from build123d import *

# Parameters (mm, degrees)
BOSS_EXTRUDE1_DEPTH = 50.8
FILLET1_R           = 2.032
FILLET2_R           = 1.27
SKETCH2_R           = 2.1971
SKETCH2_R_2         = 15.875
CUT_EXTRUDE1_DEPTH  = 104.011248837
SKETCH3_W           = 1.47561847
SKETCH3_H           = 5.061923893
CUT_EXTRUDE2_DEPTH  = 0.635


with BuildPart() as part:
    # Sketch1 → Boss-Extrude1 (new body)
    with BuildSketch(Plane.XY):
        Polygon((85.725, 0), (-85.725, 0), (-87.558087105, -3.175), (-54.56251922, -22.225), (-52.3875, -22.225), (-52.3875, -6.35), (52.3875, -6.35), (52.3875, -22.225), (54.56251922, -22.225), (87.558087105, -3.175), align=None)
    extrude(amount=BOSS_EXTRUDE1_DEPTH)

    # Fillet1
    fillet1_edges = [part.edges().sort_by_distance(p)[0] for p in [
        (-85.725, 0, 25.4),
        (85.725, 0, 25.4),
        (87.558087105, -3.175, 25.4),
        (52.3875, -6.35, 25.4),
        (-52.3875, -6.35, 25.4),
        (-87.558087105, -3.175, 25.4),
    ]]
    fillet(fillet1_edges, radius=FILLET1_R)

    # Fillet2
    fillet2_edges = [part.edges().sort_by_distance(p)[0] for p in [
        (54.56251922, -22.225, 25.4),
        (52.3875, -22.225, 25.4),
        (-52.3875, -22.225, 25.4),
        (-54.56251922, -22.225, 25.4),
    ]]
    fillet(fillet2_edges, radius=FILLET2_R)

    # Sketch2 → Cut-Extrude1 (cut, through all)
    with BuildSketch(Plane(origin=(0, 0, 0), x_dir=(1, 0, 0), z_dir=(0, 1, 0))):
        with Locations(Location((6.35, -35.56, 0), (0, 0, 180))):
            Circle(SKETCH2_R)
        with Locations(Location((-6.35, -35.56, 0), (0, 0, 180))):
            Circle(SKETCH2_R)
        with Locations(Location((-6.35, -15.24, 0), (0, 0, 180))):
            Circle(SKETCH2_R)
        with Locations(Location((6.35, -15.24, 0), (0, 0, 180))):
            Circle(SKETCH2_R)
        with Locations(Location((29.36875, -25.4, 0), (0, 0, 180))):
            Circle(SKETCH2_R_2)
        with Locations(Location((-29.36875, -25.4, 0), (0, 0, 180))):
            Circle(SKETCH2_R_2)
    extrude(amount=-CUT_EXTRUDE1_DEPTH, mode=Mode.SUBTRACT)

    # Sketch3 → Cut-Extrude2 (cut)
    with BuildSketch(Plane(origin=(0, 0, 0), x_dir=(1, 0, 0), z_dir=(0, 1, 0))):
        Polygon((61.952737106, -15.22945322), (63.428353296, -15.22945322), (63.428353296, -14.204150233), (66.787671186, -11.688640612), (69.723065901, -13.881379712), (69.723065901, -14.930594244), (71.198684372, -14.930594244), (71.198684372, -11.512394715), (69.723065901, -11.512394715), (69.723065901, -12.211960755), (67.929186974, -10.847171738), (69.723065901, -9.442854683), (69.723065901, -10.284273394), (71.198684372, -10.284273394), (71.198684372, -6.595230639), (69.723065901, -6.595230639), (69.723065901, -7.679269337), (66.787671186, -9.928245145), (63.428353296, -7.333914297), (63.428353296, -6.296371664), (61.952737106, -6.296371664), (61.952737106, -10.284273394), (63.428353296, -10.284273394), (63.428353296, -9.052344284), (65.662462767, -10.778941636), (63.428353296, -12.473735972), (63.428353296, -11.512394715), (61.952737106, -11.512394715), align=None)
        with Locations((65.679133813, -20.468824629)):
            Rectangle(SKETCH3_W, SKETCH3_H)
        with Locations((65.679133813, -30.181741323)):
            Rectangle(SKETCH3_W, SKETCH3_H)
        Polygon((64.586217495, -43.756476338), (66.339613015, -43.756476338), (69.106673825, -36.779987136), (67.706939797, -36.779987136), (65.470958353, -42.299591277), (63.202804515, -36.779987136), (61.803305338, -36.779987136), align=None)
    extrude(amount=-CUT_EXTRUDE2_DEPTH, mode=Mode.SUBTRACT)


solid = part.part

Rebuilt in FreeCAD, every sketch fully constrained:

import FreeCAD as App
import Part
import Sketcher
Q = App.Units.Quantity


def edges_at(feature, points):
    """Names of the edges that pass closest to the given points."""
    edges = feature.Shape.Edges
    near = lambda p: min(range(len(edges)), key=lambda i: edges[i].distToShape(Part.Vertex(*p))[0])
    return sorted({f"Edge{near(p) + 1}" for p in points})

doc = App.newDocument("Part")
body = doc.addObject("PartDesign::Body", "Body")

sketch1 = doc.addObject("Sketcher::SketchObject", "Sketch")
body.addObject(sketch1)
sketch1.AttachmentSupport = (doc.XY_Plane, [""])
sketch1.MapMode = "FlatFace"
sketch1.addGeometry([
    Part.LineSegment(App.Vector(85.725, 0, 0), App.Vector(-85.725, 0, 0)),
    Part.LineSegment(App.Vector(-85.725, 0, 0), App.Vector(-87.558087, -3.175, 0)),
    Part.LineSegment(App.Vector(-87.558087, -3.175, 0), App.Vector(-54.562519, -22.225, 0)),
    Part.LineSegment(App.Vector(-54.562519, -22.225, 0), App.Vector(-52.3875, -22.225, 0)),
    Part.LineSegment(App.Vector(-52.3875, -22.225, 0), App.Vector(-52.3875, -6.35, 0)),
    Part.LineSegment(App.Vector(-52.3875, -6.35, 0), App.Vector(52.3875, -6.35, 0)),
    Part.LineSegment(App.Vector(52.3875, -6.35, 0), App.Vector(52.3875, -22.225, 0)),
    Part.LineSegment(App.Vector(52.3875, -22.225, 0), App.Vector(54.562519, -22.225, 0)),
    Part.LineSegment(App.Vector(54.562519, -22.225, 0), App.Vector(87.558087, -3.175, 0)),
    Part.LineSegment(App.Vector(87.558087, -3.175, 0), App.Vector(85.725, 0, 0)),
], False)
sketch1.addConstraint([
    Sketcher.Constraint("Coincident", 0, 2, 1, 1),
    Sketcher.Constraint("Coincident", 1, 2, 2, 1),
    Sketcher.Constraint("Coincident", 2, 2, 3, 1),
    Sketcher.Constraint("Coincident", 3, 2, 4, 1),
    Sketcher.Constraint("Coincident", 4, 2, 5, 1),
    Sketcher.Constraint("Coincident", 5, 2, 6, 1),
    Sketcher.Constraint("Coincident", 6, 2, 7, 1),
    Sketcher.Constraint("Coincident", 7, 2, 8, 1),
    Sketcher.Constraint("Coincident", 8, 2, 9, 1),
    Sketcher.Constraint("Coincident", 9, 2, 0, 1),
    Sketcher.Constraint("Horizontal", 0),
    Sketcher.Constraint("Horizontal", 3),
    Sketcher.Constraint("Vertical", 4),
    Sketcher.Constraint("Horizontal", 5),
    Sketcher.Constraint("Vertical", 6),
    Sketcher.Constraint("Horizontal", 7),
    Sketcher.Constraint("Symmetric", 0, 2, 9, 2, -1, 1),
    Sketcher.Constraint("Symmetric", 3, 2, 6, 2, -2),
    Sketcher.Constraint("Symmetric", 1, 2, 8, 2, -2),
    Sketcher.Constraint("Perpendicular", 1, 2),
    Sketcher.Constraint("Perpendicular", 8, 9),
    Sketcher.Constraint("Angle", 1, Q("-120 deg")),
    Sketcher.Constraint("Distance", 2, Q("1.5 in")),
    Sketcher.Constraint("DistanceX", 0, 2, 0, 1, Q("6.75 in")),
    Sketcher.Constraint("DistanceX", 5, 1, 5, 2, Q("4.125 in")),
    Sketcher.Constraint("DistanceY", 4, 1, 4, 2, Q("0.625 in")),
    Sketcher.Constraint("DistanceY", 4, 2, -1, 1, Q("0.25 in")),
])
pad1 = doc.addObject("PartDesign::Pad", "Pad")
body.addObject(pad1)
pad1.Profile = sketch1
pad1.Length = Q("2 in")
doc.recompute()

fillet = doc.addObject("PartDesign::Fillet", "Fillet")
body.addObject(fillet)
fillet.Base = (pad1, edges_at(pad1, [
    (-85.725, 0, 25.4),
    (85.725, 0, 25.4),
    (87.558, -3.175, 25.4),
    (52.388, -6.35, 25.4),
    (-52.388, -6.35, 25.4),
    (-87.558, -3.175, 25.4),
]))
fillet.Radius = Q("0.08 in")
doc.recompute()

fillet2 = doc.addObject("PartDesign::Fillet", "Fillet001")
body.addObject(fillet2)
fillet2.Base = (fillet, edges_at(fillet, [
    (54.563, -22.225, 25.4),
    (52.388, -22.225, 25.4),
    (-52.388, -22.225, 25.4),
    (-54.563, -22.225, 25.4),
]))
fillet2.Radius = Q("0.05 in")

sketch2 = doc.addObject("Sketcher::SketchObject", "Sketch001")
body.addObject(sketch2)
sketch2.AttachmentSupport = (doc.XZ_Plane, [""])
sketch2.MapMode = "FlatFace"
sketch2.addGeometry([
    Part.Circle(App.Vector(6.35, 35.56, 0), App.Vector(0, 0, 1), 2.1971),
    Part.Circle(App.Vector(-6.35, 35.56, 0), App.Vector(0, 0, 1), 2.1971),
    Part.Circle(App.Vector(-6.35, 15.24, 0), App.Vector(0, 0, 1), 2.1971),
    Part.Circle(App.Vector(6.35, 15.24, 0), App.Vector(0, 0, 1), 2.1971),
    Part.Circle(App.Vector(29.36875, 25.4, 0), App.Vector(0, 0, 1), 15.875),
    Part.Circle(App.Vector(-29.36875, 25.4, 0), App.Vector(0, 0, 1), 15.875),
], False)
sketch2.addConstraint([
    Sketcher.Constraint("Equal", 0, 1),
    Sketcher.Constraint("Equal", 1, 2),
    Sketcher.Constraint("Equal", 2, 3),
    Sketcher.Constraint("Equal", 4, 5),
    Sketcher.Constraint("Symmetric", 0, 3, 1, 3, -2),
    Sketcher.Constraint("Symmetric", 2, 3, 3, 3, -2),
    Sketcher.Constraint("Symmetric", 4, 3, 5, 3, -2),
    Sketcher.Constraint("Vertical", 1, 3, 2, 3),
    Sketcher.Constraint("Diameter", 4, Q("1.25 in")),
    Sketcher.Constraint("Diameter", 0, Q("0.173 in")),
    Sketcher.Constraint("DistanceY", -1, 1, 4, 3, Q("1 in")),
    Sketcher.Constraint("DistanceY", -1, 1, 0, 3, Q("1.4 in")),
    Sketcher.Constraint("DistanceY", -1, 1, 2, 3, Q("0.6 in")),
    Sketcher.Constraint("DistanceX", 1, 3, 0, 3, Q("0.5 in")),
    Sketcher.Constraint("DistanceX", -1, 1, 4, 3, Q("1.15625 in")),
])
pocket1 = doc.addObject("PartDesign::Pocket", "Pocket")
body.addObject(pocket1)
pocket1.Profile = sketch2
pocket1.Type = "ThroughAll"
pocket1.Reversed = True

sketch3 = doc.addObject("Sketcher::SketchObject", "Sketch002")
body.addObject(sketch3)
sketch3.AttachmentSupport = (doc.XZ_Plane, [""])
sketch3.MapMode = "FlatFace"
sketch3.addGeometry([
    Part.LineSegment(App.Vector(61.952737, 15.229453, 0), App.Vector(63.428353, 15.229453, 0)),
    Part.LineSegment(App.Vector(63.428353, 15.229453, 0), App.Vector(63.428353, 14.20415, 0)),
    Part.LineSegment(App.Vector(63.428353, 14.20415, 0), App.Vector(66.787671, 11.688641, 0)),
    Part.LineSegment(App.Vector(66.787671, 11.688641, 0), App.Vector(69.723066, 13.88138, 0)),
    Part.LineSegment(App.Vector(69.723066, 13.88138, 0), App.Vector(69.723066, 14.930594, 0)),
    Part.LineSegment(App.Vector(69.723066, 14.930594, 0), App.Vector(71.198684, 14.930594, 0)),
    Part.LineSegment(App.Vector(71.198684, 14.930594, 0), App.Vector(71.198684, 11.512395, 0)),
    Part.LineSegment(App.Vector(71.198684, 11.512395, 0), App.Vector(69.723066, 11.512395, 0)),
    Part.LineSegment(App.Vector(69.723066, 11.512395, 0), App.Vector(69.723066, 12.211961, 0)),
    Part.LineSegment(App.Vector(69.723066, 12.211961, 0), App.Vector(67.929187, 10.847172, 0)),
    Part.LineSegment(App.Vector(67.929187, 10.847172, 0), App.Vector(69.723066, 9.442855, 0)),
    Part.LineSegment(App.Vector(69.723066, 9.442855, 0), App.Vector(69.723066, 10.284273, 0)),
    Part.LineSegment(App.Vector(69.723066, 10.284273, 0), App.Vector(71.198684, 10.284273, 0)),
    Part.LineSegment(App.Vector(71.198684, 10.284273, 0), App.Vector(71.198684, 6.595231, 0)),
    Part.LineSegment(App.Vector(71.198684, 6.595231, 0), App.Vector(69.723066, 6.595231, 0)),
    Part.LineSegment(App.Vector(69.723066, 6.595231, 0), App.Vector(69.723066, 7.679269, 0)),
    Part.LineSegment(App.Vector(69.723066, 7.679269, 0), App.Vector(66.787671, 9.928245, 0)),
    Part.LineSegment(App.Vector(66.787671, 9.928245, 0), App.Vector(63.428353, 7.333914, 0)),
    Part.LineSegment(App.Vector(63.428353, 7.333914, 0), App.Vector(63.428353, 6.296372, 0)),
    Part.LineSegment(App.Vector(63.428353, 6.296372, 0), App.Vector(61.952737, 6.296372, 0)),
    Part.LineSegment(App.Vector(61.952737, 6.296372, 0), App.Vector(61.952737, 10.284273, 0)),
    Part.LineSegment(App.Vector(61.952737, 10.284273, 0), App.Vector(63.428353, 10.284273, 0)),
    Part.LineSegment(App.Vector(63.428353, 10.284273, 0), App.Vector(63.428353, 9.052344, 0)),
    Part.LineSegment(App.Vector(63.428353, 9.052344, 0), App.Vector(65.662463, 10.778942, 0)),
    Part.LineSegment(App.Vector(65.662463, 10.778942, 0), App.Vector(63.428353, 12.473736, 0)),
    Part.LineSegment(App.Vector(63.428353, 12.473736, 0), App.Vector(63.428353, 11.512395, 0)),
    Part.LineSegment(App.Vector(63.428353, 11.512395, 0), App.Vector(61.952737, 11.512395, 0)),
    Part.LineSegment(App.Vector(61.952737, 11.512395, 0), App.Vector(61.952737, 15.229453, 0)),
    Part.LineSegment(App.Vector(64.941325, 17.937863, 0), App.Vector(64.941325, 22.999787, 0)),
    Part.LineSegment(App.Vector(64.941325, 22.999787, 0), App.Vector(66.416943, 22.999787, 0)),
    Part.LineSegment(App.Vector(66.416943, 22.999787, 0), App.Vector(66.416943, 17.937863, 0)),
    Part.LineSegment(App.Vector(66.416943, 17.937863, 0), App.Vector(64.941325, 17.937863, 0)),
    Part.LineSegment(App.Vector(64.941325, 27.650779, 0), App.Vector(64.941325, 32.712703, 0)),
    Part.LineSegment(App.Vector(64.941325, 32.712703, 0), App.Vector(66.416943, 32.712703, 0)),
    Part.LineSegment(App.Vector(66.416943, 32.712703, 0), App.Vector(66.416943, 27.650779, 0)),
    Part.LineSegment(App.Vector(66.416943, 27.650779, 0), App.Vector(64.941325, 27.650779, 0)),
    Part.LineSegment(App.Vector(64.586217, 43.756476, 0), App.Vector(66.339613, 43.756476, 0)),
    Part.LineSegment(App.Vector(66.339613, 43.756476, 0), App.Vector(69.106674, 36.779987, 0)),
    Part.LineSegment(App.Vector(69.106674, 36.779987, 0), App.Vector(67.70694, 36.779987, 0)),
    Part.LineSegment(App.Vector(67.70694, 36.779987, 0), App.Vector(65.470958, 42.299591, 0)),
    Part.LineSegment(App.Vector(65.470958, 42.299591, 0), App.Vector(63.202805, 36.779987, 0)),
    Part.LineSegment(App.Vector(63.202805, 36.779987, 0), App.Vector(61.803305, 36.779987, 0)),
    Part.LineSegment(App.Vector(61.803305, 36.779987, 0), App.Vector(64.586217, 43.756476, 0)),
], False)
sketch3.addConstraint([
    Sketcher.Constraint("Coincident", 0, 2, 1, 1),
    Sketcher.Constraint("Coincident", 1, 2, 2, 1),
    Sketcher.Constraint("Coincident", 2, 2, 3, 1),
    Sketcher.Constraint("Coincident", 3, 2, 4, 1),
    Sketcher.Constraint("Coincident", 4, 2, 5, 1),
    Sketcher.Constraint("Coincident", 5, 2, 6, 1),
    Sketcher.Constraint("Coincident", 6, 2, 7, 1),
    Sketcher.Constraint("Coincident", 7, 2, 8, 1),
    Sketcher.Constraint("Coincident", 8, 2, 9, 1),
    Sketcher.Constraint("Coincident", 9, 2, 10, 1),
    Sketcher.Constraint("Coincident", 10, 2, 11, 1),
    Sketcher.Constraint("Coincident", 11, 2, 12, 1),
    Sketcher.Constraint("Coincident", 12, 2, 13, 1),
    Sketcher.Constraint("Coincident", 13, 2, 14, 1),
    Sketcher.Constraint("Coincident", 14, 2, 15, 1),
    Sketcher.Constraint("Coincident", 15, 2, 16, 1),
    Sketcher.Constraint("Coincident", 16, 2, 17, 1),
    Sketcher.Constraint("Coincident", 17, 2, 18, 1),
    Sketcher.Constraint("Coincident", 18, 2, 19, 1),
    Sketcher.Constraint("Coincident", 19, 2, 20, 1),
    Sketcher.Constraint("Coincident", 20, 2, 21, 1),
    Sketcher.Constraint("Coincident", 21, 2, 22, 1),
    Sketcher.Constraint("Coincident", 22, 2, 23, 1),
    Sketcher.Constraint("Coincident", 23, 2, 24, 1),
    Sketcher.Constraint("Coincident", 24, 2, 25, 1),
    Sketcher.Constraint("Coincident", 25, 2, 26, 1),
    Sketcher.Constraint("Coincident", 26, 2, 27, 1),
    Sketcher.Constraint("Coincident", 27, 2, 0, 1),
    Sketcher.Constraint("Coincident", 28, 2, 29, 1),
    Sketcher.Constraint("Coincident", 29, 2, 30, 1),
    Sketcher.Constraint("Coincident", 30, 2, 31, 1),
    Sketcher.Constraint("Coincident", 31, 2, 28, 1),
    Sketcher.Constraint("Coincident", 32, 2, 33, 1),
    Sketcher.Constraint("Coincident", 33, 2, 34, 1),
    Sketcher.Constraint("Coincident", 34, 2, 35, 1),
    Sketcher.Constraint("Coincident", 35, 2, 32, 1),
    Sketcher.Constraint("Coincident", 36, 2, 37, 1),
    Sketcher.Constraint("Coincident", 37, 2, 38, 1),
    Sketcher.Constraint("Coincident", 38, 2, 39, 1),
    Sketcher.Constraint("Coincident", 39, 2, 40, 1),
    Sketcher.Constraint("Coincident", 40, 2, 41, 1),
    Sketcher.Constraint("Coincident", 41, 2, 42, 1),
    Sketcher.Constraint("Coincident", 42, 2, 36, 1),
    Sketcher.Constraint("Horizontal", 0),
    Sketcher.Constraint("Vertical", 1),
    Sketcher.Constraint("Vertical", 4),
    Sketcher.Constraint("Horizontal", 5),
    Sketcher.Constraint("Vertical", 6),
    Sketcher.Constraint("Horizontal", 7),
    Sketcher.Constraint("Vertical", 8),
    Sketcher.Constraint("Vertical", 11),
    Sketcher.Constraint("Horizontal", 12),
    Sketcher.Constraint("Vertical", 13),
    Sketcher.Constraint("Horizontal", 14),
    Sketcher.Constraint("Vertical", 15),
    Sketcher.Constraint("Vertical", 18),
    Sketcher.Constraint("Horizontal", 19),
    Sketcher.Constraint("Vertical", 20),
    Sketcher.Constraint("Horizontal", 21),
    Sketcher.Constraint("Vertical", 22),
    Sketcher.Constraint("Vertical", 25),
    Sketcher.Constraint("Horizontal", 26),
    Sketcher.Constraint("Vertical", 27),
    Sketcher.Constraint("Vertical", 28),
    Sketcher.Constraint("Horizontal", 29),
    Sketcher.Constraint("Vertical", 30),
    Sketcher.Constraint("Horizontal", 31),
    Sketcher.Constraint("Vertical", 32),
    Sketcher.Constraint("Horizontal", 33),
    Sketcher.Constraint("Vertical", 34),
    Sketcher.Constraint("Horizontal", 35),
    Sketcher.Constraint("Horizontal", 36),
    Sketcher.Constraint("Horizontal", 38),
    Sketcher.Constraint("Horizontal", 41),
    Sketcher.Constraint("Horizontal", 12, 2, 20, 2),
    Sketcher.Constraint("Horizontal", 7, 2, 25, 2),
    Sketcher.Constraint("Horizontal", 38, 2, 40, 2),
    Sketcher.Constraint("Vertical", 4, 2, 7, 2),
    Sketcher.Constraint("Vertical", 8, 2, 10, 2),
    Sketcher.Constraint("Vertical", 6, 2, 12, 2),
    Sketcher.Constraint("Vertical", 11, 2, 14, 2),
    Sketcher.Constraint("Vertical", 2, 2, 16, 2),
    Sketcher.Constraint("Vertical", 1, 2, 17, 2),
    Sketcher.Constraint("Vertical", 18, 2, 21, 2),
    Sketcher.Constraint("Vertical", 22, 2, 24, 2),
    Sketcher.Constraint("Vertical", 20, 2, 26, 2),
    Sketcher.Constraint("Vertical", 31, 2, 32, 2),
    Sketcher.Constraint("Vertical", 30, 2, 33, 2),
    Sketcher.Constraint("Equal", 14, 29),
    Sketcher.Constraint("Equal", 30, 32),
    Sketcher.Constraint("DistanceX", 41, 2, 41, 1, Q("1.399499 mm")),
    Sketcher.Constraint("DistanceY", 6, 2, 6, 1, Q("3.4182 mm")),
    Sketcher.Constraint("DistanceY", 20, 1, 20, 2, Q("3.987902 mm")),
    Sketcher.Constraint("DistanceY", 1, 2, 4, 2, Q("0.0286002 in")),
    Sketcher.Constraint("Distance", 37, Q("7.5052 mm")),
    Sketcher.Constraint("DistanceX", 5, 1, 5, 2, Q("1.475618 mm")),
    Sketcher.Constraint("DistanceY", 11, 1, 11, 2, Q("0.841419 mm")),
    Sketcher.Constraint("DistanceY", 15, 1, 15, 2, Q("1.084039 mm")),
    Sketcher.Constraint("DistanceY", 22, 2, 22, 1, Q("1.231929 mm")),
    Sketcher.Constraint("DistanceY", 25, 2, 25, 1, Q("0.961341 mm")),
    Sketcher.Constraint("DistanceY", 27, 1, 27, 2, Q("3.717059 mm")),
    Sketcher.Constraint("DistanceY", 11, 2, 9, 2, Q("0.562898 mm")),
    Sketcher.Constraint("DistanceY", 23, 2, 2, 2, Q("0.909699 mm")),
    Sketcher.Constraint("Distance", 2, Q("4.196761 mm")),
    Sketcher.Constraint("Distance", 9, Q("2.25403 mm")),
    Sketcher.Constraint("Distance", 10, Q("2.278181 mm")),
    Sketcher.Constraint("Distance", 23, Q("2.823541 mm")),
    Sketcher.Constraint("Distance", 42, Q("7.511059 mm")),
    Sketcher.Constraint("DistanceX", 0, 1, 0, 2, Q("1.475616 mm")),
    Sketcher.Constraint("DistanceX", 36, 1, 36, 2, Q("1.753396 mm")),
    Sketcher.Constraint("DistanceX", 38, 2, 38, 1, Q("1.399734 mm")),
    Sketcher.Constraint("DistanceY", 4, 1, 4, 2, Q("1.049215 mm")),
    Sketcher.Constraint("DistanceY", 8, 1, 8, 2, Q("0.699566 mm")),
    Sketcher.Constraint("DistanceY", 13, 2, 13, 1, Q("3.689043 mm")),
    Sketcher.Constraint("DistanceY", 18, 2, 18, 1, Q("1.037543 mm")),
    Sketcher.Constraint("DistanceY", 28, 1, 28, 2, Q("5.061924 mm")),
    Sketcher.Constraint("DistanceY", -1, 1, 1, 2, Q("14.20415 mm")),
    Sketcher.Constraint("DistanceX", -1, 1, 2, 2, Q("66.787671 mm")),
    Sketcher.Constraint("DistanceY", -1, 1, 2, 2, Q("11.688641 mm")),
    Sketcher.Constraint("DistanceY", -1, 1, 34, 2, Q("27.650779 mm")),
    Sketcher.Constraint("DistanceX", -1, 1, 38, 2, Q("67.70694 mm")),
    Sketcher.Constraint("DistanceX", -1, 1, 39, 2, Q("65.470958 mm")),
    Sketcher.Constraint("DistanceY", -1, 1, 39, 2, Q("42.299591 mm")),
    Sketcher.Constraint("DistanceX", 0, 2, 5, 2, Q("7.770331 mm")),
    Sketcher.Constraint("DistanceY", 16, 2, 11, 2, Q("0.356028 mm")),
    Sketcher.Constraint("DistanceX", 0, 2, 28, 2, Q("1.512971 mm")),
    Sketcher.Constraint("DistanceY", 0, 2, 30, 2, Q("2.708409 mm")),
    Sketcher.Constraint("DistanceX", 36, 2, 33, 2, Q("0.07733 mm")),
    Sketcher.Constraint("DistanceY", 29, 2, 36, 2, Q("20.75669 mm")),
])
pocket2 = doc.addObject("PartDesign::Pocket", "Pocket001")
body.addObject(pocket2)
pocket2.Profile = sketch3
pocket2.Length = Q("0.025 in")
pocket2.Reversed = True

doc.recompute()
